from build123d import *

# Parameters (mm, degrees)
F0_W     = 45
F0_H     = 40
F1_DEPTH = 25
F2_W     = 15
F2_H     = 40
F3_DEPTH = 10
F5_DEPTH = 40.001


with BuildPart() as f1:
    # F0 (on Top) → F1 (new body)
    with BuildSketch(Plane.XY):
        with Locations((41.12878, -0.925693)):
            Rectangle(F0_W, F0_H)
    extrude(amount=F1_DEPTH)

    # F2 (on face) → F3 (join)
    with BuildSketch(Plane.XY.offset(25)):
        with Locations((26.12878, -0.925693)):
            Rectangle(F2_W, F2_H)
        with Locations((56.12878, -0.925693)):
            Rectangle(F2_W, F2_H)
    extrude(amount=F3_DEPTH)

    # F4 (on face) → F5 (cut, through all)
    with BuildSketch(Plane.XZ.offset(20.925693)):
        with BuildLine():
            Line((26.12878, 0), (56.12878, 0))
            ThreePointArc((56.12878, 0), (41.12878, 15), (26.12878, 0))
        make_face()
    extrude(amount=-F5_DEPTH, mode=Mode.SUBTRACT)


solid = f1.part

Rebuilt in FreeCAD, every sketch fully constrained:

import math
import FreeCAD as App
import Part
import Sketcher
Q = App.Units.Quantity


def add_polygon(sketch, points):
    """Adds a closed chain of lines whose ends are joined by coincident constraints."""
    first, n = sketch.GeometryCount, len(points)
    for a, b in zip(points, points[1:] + points[:1]):
        sketch.addGeometry(Part.LineSegment(App.Vector(*a, 0), App.Vector(*b, 0)), False)
    for i in range(n):
        sketch.addConstraint(Sketcher.Constraint("Coincident", first + i, 2, first + (i + 1) % n, 1))

doc = App.newDocument("Part")
body = doc.addObject("PartDesign::Body", "Body")

# Sketch on XY plane
sketch1 = body.newObject("Sketcher::SketchObject", "Sketch")
sketch1.AttachmentSupport = (doc.getObject("XY_Plane"), [""])
sketch1.MapMode = "FlatFace"
add_polygon(sketch1, [(19, 19), (19, -21), (64, -21), (64, 19)])  # lines 0-3
sketch1.addConstraint([
    Sketcher.Constraint("Vertical", 0),
    Sketcher.Constraint("Horizontal", 1),
    Sketcher.Constraint("Vertical", 2),
    Sketcher.Constraint("Horizontal", 3),
    Sketcher.Constraint("DistanceX", 1, 1, 1, 2, Q("45 mm")),
    Sketcher.Constraint("DistanceY", 0, 2, 0, 1, Q("40 mm")),
    Sketcher.Constraint("DistanceX", -1, 1, 0, 2, Q("18.62878 mm")),
    Sketcher.Constraint("DistanceY", 0, 2, -1, 1, Q("20.925693 mm")),
])
pad1 = body.newObject("PartDesign::Pad", "Pad")
pad1.Profile = sketch1
pad1.Length = 25

# Sketch on XY plane
sketch2 = body.newObject("Sketcher::SketchObject", "Sketch001")
sketch2.AttachmentSupport = (doc.getObject("XY_Plane"), [""])
sketch2.MapMode = "FlatFace"
sketch2.AttachmentOffset = App.Placement(App.Vector(0, 0, 25), App.Rotation())
add_polygon(sketch2, [(19, 19), (19, -21), (34, -21), (34, 19)])  # lines 0-3
add_polygon(sketch2, [(49, 19), (49, -21), (64, -21), (64, 19)])  # lines 4-7
sketch2.addConstraint([
    Sketcher.Constraint("Vertical", 0),
    Sketcher.Constraint("Horizontal", 1),
    Sketcher.Constraint("Vertical", 2),
    Sketcher.Constraint("Horizontal", 3),
    Sketcher.Constraint("Vertical", 4),
    Sketcher.Constraint("Horizontal", 5),
    Sketcher.Constraint("Vertical", 6),
    Sketcher.Constraint("Horizontal", 7),
    Sketcher.Constraint("Horizontal", 1, 2, 4, 2),
    Sketcher.Constraint("Horizontal", 3, 2, 6, 2),
    Sketcher.Constraint("Equal", 3, 5),
    Sketcher.Constraint("DistanceX", 1, 1, 1, 2, Q("15 mm")),
    Sketcher.Constraint("DistanceY", 0, 2, 0, 1, Q("40 mm")),
    Sketcher.Constraint("DistanceX", 1, 2, 4, 2, Q("15 mm")),
    Sketcher.Constraint("DistanceX", -1, 1, 0, 2, Q("18.62878 mm")),
    Sketcher.Constraint("DistanceY", 0, 2, -1, 1, Q("20.925693 mm")),
])
pad2 = body.newObject("PartDesign::Pad", "Pad001")
pad2.Profile = sketch2
pad2.Length = 10

# Sketch on XZ plane
sketch3 = body.newObject("Sketcher::SketchObject", "Sketch002")
sketch3.AttachmentSupport = (doc.getObject("XZ_Plane"), [""])
sketch3.MapMode = "FlatFace"
sketch3.AttachmentOffset = App.Placement(App.Vector(0, 0, 20.925693), App.Rotation())
sketch3.addGeometry([
    Part.LineSegment(App.Vector(26, 0, 0), App.Vector(56, 0, 0)),
    Part.ArcOfCircle(Part.Circle(App.Vector(41, 0, 0), App.Vector(0, 0, 1), 15), math.radians(0), math.radians(180)),
], False)
sketch3.addConstraint([
    Sketcher.Constraint("Coincident", 0, 1, 1, 2),
    Sketcher.Constraint("Coincident", 1, 1, 0, 2),
    Sketcher.Constraint("Horizontal", 0),
    Sketcher.Constraint("PointOnObject", 1, 3, -1),
    Sketcher.Constraint("PointOnObject", 0, 1, -1),
    Sketcher.Constraint("Radius", 1, Q("15 mm")),
    Sketcher.Constraint("DistanceX", -1, 1, 1, 3, Q("41.12878 mm")),
])
pocket1 = body.newObject("PartDesign::Pocket", "Pocket")
pocket1.Profile = sketch3
pocket1.Type = "ThroughAll"

doc.recompute()
